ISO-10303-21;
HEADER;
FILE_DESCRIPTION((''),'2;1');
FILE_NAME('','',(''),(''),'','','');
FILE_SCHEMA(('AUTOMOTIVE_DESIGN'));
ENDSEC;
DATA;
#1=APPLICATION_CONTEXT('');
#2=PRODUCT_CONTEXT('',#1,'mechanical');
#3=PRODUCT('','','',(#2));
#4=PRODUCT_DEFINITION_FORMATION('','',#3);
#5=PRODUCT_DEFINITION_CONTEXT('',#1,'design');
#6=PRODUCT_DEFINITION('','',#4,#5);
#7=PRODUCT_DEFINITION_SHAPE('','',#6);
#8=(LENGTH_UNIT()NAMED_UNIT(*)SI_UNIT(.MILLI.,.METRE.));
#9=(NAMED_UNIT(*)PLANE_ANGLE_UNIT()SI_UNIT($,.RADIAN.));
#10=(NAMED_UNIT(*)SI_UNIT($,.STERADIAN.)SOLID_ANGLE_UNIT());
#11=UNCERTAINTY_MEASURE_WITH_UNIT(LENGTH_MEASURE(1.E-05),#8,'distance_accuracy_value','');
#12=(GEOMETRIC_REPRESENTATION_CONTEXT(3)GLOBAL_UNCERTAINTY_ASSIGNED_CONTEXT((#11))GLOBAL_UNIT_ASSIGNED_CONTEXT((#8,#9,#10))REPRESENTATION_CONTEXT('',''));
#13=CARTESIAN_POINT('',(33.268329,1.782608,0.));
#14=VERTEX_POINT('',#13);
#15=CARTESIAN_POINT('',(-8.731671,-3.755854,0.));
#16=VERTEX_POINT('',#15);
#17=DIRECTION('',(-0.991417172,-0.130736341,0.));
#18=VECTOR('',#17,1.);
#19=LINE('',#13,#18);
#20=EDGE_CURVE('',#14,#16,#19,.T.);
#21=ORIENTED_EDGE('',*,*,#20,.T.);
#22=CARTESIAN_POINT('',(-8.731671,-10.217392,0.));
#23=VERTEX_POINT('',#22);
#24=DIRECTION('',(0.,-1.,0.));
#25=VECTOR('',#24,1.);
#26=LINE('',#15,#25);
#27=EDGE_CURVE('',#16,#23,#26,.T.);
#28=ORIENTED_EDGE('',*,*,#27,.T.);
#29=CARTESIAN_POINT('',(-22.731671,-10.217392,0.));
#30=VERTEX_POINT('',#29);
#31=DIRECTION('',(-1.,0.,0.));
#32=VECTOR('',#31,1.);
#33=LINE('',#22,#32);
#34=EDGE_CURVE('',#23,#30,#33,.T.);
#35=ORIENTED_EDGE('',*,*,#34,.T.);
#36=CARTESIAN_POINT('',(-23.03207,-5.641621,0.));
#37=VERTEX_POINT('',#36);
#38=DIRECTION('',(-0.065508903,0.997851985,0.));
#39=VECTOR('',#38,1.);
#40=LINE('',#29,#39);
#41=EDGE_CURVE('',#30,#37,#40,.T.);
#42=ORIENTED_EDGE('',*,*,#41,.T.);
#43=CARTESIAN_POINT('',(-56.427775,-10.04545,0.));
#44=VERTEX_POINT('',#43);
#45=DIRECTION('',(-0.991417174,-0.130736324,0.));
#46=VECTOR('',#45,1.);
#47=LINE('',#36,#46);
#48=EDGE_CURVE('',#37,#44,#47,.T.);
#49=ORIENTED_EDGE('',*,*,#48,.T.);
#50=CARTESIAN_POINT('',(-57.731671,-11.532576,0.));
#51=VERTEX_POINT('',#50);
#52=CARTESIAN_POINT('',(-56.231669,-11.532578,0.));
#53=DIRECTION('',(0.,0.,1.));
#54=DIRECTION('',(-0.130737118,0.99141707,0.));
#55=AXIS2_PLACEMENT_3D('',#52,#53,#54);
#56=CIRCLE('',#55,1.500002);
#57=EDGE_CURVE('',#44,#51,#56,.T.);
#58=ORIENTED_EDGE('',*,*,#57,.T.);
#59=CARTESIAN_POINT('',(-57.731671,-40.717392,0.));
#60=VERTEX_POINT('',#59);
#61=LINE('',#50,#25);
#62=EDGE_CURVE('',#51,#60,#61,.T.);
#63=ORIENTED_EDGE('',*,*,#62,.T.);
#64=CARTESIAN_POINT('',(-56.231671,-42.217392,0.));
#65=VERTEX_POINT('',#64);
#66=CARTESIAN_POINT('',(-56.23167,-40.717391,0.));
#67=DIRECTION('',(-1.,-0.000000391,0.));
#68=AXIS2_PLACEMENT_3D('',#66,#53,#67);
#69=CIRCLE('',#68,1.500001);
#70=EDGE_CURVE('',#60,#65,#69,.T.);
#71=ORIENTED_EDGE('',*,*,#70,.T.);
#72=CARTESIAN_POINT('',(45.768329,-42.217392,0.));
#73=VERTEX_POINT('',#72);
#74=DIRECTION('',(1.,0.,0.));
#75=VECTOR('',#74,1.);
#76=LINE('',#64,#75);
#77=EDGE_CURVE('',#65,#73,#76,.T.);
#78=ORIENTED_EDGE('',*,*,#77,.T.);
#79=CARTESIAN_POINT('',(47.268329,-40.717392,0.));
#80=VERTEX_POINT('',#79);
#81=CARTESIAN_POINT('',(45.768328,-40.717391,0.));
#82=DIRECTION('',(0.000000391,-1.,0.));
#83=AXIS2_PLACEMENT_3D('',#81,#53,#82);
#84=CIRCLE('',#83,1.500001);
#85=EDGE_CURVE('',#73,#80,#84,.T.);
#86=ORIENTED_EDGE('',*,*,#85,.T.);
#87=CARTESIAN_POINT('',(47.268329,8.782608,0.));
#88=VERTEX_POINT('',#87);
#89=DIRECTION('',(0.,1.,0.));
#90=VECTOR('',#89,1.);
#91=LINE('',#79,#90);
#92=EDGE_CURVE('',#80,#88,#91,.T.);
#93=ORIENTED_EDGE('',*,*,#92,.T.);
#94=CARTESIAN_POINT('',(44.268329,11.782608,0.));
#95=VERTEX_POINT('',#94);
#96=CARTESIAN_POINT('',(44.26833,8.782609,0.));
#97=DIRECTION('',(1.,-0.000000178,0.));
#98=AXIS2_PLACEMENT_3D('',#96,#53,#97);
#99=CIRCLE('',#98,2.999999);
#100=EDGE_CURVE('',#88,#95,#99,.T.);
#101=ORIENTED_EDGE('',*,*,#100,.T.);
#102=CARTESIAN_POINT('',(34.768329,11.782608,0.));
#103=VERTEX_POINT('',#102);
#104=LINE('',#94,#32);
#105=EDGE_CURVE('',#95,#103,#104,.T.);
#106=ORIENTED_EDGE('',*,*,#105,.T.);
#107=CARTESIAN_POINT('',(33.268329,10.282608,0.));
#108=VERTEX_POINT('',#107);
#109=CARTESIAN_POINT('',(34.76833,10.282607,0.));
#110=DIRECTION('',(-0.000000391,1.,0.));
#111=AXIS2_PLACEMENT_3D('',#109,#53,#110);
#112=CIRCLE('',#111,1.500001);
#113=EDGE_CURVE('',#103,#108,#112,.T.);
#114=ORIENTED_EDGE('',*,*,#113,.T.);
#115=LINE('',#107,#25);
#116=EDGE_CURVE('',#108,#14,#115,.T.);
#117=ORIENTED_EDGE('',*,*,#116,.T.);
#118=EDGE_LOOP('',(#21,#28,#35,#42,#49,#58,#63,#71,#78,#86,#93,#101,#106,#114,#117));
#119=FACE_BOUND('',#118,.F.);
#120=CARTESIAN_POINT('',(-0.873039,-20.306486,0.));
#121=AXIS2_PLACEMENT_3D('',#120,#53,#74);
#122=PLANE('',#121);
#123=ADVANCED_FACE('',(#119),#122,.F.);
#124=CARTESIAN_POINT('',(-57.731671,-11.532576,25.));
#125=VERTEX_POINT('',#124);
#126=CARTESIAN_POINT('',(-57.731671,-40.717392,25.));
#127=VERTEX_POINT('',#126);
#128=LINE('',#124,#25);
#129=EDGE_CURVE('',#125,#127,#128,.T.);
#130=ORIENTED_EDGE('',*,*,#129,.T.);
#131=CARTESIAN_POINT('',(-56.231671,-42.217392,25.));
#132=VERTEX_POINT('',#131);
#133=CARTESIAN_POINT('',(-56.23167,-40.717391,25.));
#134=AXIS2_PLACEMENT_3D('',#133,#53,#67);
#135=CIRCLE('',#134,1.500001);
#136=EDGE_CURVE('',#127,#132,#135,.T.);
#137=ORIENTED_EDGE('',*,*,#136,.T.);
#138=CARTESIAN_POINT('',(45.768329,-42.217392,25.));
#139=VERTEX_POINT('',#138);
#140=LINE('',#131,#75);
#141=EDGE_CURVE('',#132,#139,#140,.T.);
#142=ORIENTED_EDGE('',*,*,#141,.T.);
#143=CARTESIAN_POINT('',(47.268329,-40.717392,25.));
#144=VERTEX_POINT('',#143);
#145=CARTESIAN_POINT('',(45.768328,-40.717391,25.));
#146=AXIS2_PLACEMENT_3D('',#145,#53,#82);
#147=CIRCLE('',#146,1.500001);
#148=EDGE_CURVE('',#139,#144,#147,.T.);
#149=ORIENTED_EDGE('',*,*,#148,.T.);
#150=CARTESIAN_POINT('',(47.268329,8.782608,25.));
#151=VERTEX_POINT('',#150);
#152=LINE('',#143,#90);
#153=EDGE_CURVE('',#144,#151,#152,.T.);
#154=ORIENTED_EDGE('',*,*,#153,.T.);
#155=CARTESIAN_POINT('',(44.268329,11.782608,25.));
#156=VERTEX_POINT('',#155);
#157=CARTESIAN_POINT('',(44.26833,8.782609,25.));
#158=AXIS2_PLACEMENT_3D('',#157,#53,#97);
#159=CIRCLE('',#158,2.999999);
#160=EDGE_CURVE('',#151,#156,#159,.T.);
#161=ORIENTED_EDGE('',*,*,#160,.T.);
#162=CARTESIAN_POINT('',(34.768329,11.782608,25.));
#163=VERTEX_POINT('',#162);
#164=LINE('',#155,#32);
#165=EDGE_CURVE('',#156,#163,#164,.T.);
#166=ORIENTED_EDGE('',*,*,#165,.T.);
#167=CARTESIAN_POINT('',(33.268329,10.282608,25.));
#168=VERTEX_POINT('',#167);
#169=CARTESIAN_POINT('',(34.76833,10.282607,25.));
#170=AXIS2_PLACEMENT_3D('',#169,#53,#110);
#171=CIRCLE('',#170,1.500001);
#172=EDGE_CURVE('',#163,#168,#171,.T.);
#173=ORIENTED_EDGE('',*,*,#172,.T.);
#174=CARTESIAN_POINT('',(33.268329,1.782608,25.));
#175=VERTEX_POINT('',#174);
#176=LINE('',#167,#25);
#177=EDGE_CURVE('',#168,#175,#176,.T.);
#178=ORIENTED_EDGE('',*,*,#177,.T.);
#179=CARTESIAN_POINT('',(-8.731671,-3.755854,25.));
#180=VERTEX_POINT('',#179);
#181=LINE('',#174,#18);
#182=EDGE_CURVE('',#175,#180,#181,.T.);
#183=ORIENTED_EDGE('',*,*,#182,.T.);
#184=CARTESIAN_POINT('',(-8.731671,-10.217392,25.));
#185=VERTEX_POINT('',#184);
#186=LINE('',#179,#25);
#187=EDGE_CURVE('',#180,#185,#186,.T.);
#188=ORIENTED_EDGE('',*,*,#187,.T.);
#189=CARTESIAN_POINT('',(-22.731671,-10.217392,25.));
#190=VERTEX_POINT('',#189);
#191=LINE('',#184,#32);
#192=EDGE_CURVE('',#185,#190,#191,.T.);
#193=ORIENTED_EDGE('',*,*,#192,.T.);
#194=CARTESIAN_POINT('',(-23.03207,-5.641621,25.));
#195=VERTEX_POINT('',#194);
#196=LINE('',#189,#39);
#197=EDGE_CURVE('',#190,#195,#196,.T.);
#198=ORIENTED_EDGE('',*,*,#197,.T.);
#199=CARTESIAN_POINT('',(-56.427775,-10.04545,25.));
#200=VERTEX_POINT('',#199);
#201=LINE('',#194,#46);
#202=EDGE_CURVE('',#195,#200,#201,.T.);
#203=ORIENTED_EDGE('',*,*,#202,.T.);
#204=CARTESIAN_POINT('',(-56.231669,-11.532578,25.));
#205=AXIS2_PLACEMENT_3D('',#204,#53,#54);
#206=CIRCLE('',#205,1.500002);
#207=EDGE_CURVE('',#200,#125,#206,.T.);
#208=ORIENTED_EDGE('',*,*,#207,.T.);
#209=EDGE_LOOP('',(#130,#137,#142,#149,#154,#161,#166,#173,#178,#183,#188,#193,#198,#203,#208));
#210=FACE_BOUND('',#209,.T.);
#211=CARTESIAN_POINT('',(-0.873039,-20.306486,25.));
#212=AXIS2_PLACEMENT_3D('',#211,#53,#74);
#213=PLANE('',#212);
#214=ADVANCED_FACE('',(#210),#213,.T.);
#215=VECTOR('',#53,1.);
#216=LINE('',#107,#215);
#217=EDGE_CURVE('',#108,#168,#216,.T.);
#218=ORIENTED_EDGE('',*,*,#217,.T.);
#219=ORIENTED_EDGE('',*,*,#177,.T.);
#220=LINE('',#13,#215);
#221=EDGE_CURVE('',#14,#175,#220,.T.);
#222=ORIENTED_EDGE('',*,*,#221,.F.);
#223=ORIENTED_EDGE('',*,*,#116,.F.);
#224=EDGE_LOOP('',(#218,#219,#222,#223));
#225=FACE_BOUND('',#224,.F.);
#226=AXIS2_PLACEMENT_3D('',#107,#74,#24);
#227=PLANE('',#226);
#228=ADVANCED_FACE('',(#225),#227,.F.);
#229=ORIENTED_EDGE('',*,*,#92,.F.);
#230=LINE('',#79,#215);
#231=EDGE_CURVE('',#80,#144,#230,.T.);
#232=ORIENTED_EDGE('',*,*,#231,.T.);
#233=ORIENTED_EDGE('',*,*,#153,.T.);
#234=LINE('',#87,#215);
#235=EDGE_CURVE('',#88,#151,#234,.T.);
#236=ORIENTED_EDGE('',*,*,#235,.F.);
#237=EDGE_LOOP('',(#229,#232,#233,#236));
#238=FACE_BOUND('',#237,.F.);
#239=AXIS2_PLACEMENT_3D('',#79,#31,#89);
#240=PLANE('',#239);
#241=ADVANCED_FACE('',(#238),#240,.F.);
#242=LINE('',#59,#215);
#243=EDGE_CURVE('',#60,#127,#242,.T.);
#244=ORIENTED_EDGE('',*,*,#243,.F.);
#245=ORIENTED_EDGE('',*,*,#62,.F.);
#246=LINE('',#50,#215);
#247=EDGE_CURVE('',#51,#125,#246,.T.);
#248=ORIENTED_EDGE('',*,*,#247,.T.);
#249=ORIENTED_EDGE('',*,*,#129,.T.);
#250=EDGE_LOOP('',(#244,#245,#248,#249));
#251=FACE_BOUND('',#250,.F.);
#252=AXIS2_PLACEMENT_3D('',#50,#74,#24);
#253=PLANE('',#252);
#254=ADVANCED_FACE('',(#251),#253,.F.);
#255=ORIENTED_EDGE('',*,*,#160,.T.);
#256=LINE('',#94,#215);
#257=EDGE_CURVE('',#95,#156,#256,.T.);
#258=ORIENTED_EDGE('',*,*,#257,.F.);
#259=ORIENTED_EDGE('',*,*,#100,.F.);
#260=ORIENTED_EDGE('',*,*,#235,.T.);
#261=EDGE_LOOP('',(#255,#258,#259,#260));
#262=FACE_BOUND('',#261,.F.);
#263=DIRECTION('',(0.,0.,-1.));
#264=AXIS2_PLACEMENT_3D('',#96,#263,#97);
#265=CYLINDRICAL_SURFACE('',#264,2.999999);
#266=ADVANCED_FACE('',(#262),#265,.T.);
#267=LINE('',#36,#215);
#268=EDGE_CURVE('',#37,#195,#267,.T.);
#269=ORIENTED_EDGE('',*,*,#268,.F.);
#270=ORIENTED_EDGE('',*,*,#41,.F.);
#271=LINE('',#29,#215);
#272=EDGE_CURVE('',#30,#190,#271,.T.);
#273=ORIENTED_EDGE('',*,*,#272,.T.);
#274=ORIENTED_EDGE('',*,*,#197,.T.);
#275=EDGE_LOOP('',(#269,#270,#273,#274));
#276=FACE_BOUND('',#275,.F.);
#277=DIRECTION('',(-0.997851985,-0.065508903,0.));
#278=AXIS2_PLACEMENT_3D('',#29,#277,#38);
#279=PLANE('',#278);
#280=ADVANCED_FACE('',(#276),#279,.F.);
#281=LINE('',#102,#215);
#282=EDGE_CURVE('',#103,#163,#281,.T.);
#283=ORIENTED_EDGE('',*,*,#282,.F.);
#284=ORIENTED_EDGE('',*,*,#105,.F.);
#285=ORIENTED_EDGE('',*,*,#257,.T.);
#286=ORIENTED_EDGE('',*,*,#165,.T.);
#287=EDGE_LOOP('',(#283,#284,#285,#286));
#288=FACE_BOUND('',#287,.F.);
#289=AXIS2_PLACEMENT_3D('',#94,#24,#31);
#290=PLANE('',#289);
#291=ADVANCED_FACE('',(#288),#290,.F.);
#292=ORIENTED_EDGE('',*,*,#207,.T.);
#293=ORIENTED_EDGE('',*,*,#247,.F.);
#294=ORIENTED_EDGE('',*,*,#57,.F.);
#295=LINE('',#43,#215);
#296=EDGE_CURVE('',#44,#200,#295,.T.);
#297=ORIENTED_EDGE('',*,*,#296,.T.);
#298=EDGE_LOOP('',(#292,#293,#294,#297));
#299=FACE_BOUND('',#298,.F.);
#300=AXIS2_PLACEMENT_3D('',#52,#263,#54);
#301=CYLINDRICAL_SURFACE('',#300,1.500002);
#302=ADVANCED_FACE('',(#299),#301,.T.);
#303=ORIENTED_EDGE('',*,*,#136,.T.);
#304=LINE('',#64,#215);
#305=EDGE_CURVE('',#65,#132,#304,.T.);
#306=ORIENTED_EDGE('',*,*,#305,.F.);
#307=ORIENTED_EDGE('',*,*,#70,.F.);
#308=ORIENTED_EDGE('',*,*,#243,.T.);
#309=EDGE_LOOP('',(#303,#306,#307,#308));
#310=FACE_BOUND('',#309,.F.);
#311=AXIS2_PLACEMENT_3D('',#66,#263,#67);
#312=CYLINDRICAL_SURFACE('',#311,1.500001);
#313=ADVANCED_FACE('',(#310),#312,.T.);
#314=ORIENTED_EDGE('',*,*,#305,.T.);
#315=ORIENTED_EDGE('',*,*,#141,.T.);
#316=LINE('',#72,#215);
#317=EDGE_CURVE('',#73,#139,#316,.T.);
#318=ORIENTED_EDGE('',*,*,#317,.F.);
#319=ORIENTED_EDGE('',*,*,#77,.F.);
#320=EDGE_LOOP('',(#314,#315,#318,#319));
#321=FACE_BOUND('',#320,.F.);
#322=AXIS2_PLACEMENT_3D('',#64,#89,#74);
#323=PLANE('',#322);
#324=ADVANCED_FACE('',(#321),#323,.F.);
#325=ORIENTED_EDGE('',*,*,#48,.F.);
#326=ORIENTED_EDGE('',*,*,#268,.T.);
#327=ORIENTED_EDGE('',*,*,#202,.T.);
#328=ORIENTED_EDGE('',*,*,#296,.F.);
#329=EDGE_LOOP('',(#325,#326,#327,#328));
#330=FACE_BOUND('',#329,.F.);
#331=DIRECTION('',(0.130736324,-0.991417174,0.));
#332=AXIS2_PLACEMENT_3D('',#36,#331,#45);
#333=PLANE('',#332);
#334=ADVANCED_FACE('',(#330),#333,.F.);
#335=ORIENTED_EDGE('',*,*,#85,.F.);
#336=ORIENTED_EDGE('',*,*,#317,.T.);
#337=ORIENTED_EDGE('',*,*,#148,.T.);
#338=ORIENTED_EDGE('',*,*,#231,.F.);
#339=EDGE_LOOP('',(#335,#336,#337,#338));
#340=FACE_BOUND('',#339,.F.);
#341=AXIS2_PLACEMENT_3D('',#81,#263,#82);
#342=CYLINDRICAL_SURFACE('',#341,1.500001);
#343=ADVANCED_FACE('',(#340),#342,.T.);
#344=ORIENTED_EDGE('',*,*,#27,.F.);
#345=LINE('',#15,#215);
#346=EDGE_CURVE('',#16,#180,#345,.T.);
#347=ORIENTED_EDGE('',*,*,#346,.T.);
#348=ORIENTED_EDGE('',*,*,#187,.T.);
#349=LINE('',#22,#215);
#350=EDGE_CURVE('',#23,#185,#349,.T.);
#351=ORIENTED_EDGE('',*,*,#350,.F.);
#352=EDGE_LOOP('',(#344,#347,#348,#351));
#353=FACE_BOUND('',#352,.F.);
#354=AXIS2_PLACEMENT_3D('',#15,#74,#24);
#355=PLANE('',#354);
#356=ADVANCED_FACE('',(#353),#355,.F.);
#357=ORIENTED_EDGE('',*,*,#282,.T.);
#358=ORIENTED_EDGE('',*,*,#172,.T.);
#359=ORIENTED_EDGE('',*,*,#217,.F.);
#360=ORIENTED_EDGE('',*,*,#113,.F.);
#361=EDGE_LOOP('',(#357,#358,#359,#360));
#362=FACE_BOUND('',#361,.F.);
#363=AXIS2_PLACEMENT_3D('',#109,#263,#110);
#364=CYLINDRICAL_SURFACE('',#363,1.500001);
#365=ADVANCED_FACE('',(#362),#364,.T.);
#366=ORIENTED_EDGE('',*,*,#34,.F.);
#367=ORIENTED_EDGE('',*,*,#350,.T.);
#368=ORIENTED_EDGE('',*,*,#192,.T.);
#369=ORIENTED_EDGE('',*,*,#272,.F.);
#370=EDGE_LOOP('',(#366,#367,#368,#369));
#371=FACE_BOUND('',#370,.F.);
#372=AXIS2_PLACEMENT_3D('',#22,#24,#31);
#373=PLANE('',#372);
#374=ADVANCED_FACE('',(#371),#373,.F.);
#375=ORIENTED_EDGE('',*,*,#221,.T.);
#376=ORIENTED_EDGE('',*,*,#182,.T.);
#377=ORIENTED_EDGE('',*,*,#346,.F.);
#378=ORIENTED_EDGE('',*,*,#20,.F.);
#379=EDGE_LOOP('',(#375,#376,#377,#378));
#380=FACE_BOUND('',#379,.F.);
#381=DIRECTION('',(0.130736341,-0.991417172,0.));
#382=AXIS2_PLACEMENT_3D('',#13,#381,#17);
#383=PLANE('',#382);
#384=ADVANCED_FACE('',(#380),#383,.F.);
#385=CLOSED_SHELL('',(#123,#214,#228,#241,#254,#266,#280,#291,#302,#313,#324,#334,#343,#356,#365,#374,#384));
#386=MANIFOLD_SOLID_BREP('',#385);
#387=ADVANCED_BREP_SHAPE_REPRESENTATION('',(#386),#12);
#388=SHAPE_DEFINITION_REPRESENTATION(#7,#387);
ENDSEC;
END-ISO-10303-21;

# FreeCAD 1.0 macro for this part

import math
import FreeCAD as App
import Part
import Sketcher
from FreeCAD import Vector
Q = App.Units.Quantity

doc = App.newDocument("Part")
body = doc.addObject("PartDesign::Body", "Body")

# Sketch on XY plane
sketch1 = body.newObject("Sketcher::SketchObject", "Sketch")
sketch1.AttachmentSupport = (doc.getObject("XY_Plane"), [""])
sketch1.MapMode = "FlatFace"
sketch1.addGeometry([
    Part.ArcOfCircle(Part.Circle(Vector(-56.2, -40.7, 0), Vector(0, 0, 1), 1.5), math.radians(-180), math.radians(-90)),  # 0
    Part.LineSegment(Vector(-56.2, -42.2, 0), Vector(45.8, -42.2, 0)),  # 1
    Part.ArcOfCircle(Part.Circle(Vector(45.8, -40.7, 0), Vector(0, 0, 1), 1.5), math.radians(-90), math.radians(0)),  # 2
    Part.LineSegment(Vector(47.3, -40.7, 0), Vector(47.3, 8.8, 0)),  # 3
    Part.ArcOfCircle(Part.Circle(Vector(44.3, 8.8, 0), Vector(0, 0, 1), 3), math.radians(0), math.radians(90)),  # 4
    Part.LineSegment(Vector(44.3, 11.8, 0), Vector(34.8, 11.8, 0)),  # 5
    Part.ArcOfCircle(Part.Circle(Vector(34.8, 10.3, 0), Vector(0, 0, 1), 1.5), math.radians(90), math.radians(180)),  # 6
    Part.LineSegment(Vector(33.3, 10.3, 0), Vector(33.3, 1.8, 0)),  # 7
    Part.LineSegment(Vector(33.3, 1.8, 0), Vector(-8.7, -3.8, 0)),  # 8
    Part.LineSegment(Vector(-8.7, -3.8, 0), Vector(-8.7, -10.2, 0)),  # 9
    Part.LineSegment(Vector(-8.7, -10.2, 0), Vector(-22.7, -10.2, 0)),  # 10
    Part.LineSegment(Vector(-22.7, -10.2, 0), Vector(-23, -5.6, 0)),  # 11
    Part.LineSegment(Vector(-23, -5.6, 0), Vector(-56.4, -10, 0)),  # 12
    Part.ArcOfCircle(Part.Circle(Vector(-56.2, -11.5, 0), Vector(0, 0, 1), 1.5), math.radians(98), math.radians(180)),  # 13
    Part.LineSegment(Vector(-57.7, -11.5, 0), Vector(-57.7, -40.7, 0)),  # 14
], False)
sketch1.addConstraint([
    Sketcher.Constraint("Tangent", 0, 2, 1, 1),
    Sketcher.Constraint("Tangent", 1, 2, 2, 1),
    Sketcher.Constraint("Tangent", 2, 2, 3, 1),
    Sketcher.Constraint("Tangent", 3, 2, 4, 1),
    Sketcher.Constraint("Tangent", 4, 2, 5, 1),
    Sketcher.Constraint("Tangent", 5, 2, 6, 1),
    Sketcher.Constraint("Tangent", 6, 2, 7, 1),
    Sketcher.Constraint("Coincident", 7, 2, 8, 1),
    Sketcher.Constraint("Coincident", 8, 2, 9, 1),
    Sketcher.Constraint("Coincident", 9, 2, 10, 1),
    Sketcher.Constraint("Coincident", 10, 2, 11, 1),
    Sketcher.Constraint("Coincident", 11, 2, 12, 1),
    Sketcher.Constraint("Tangent", 12, 2, 13, 1),
    Sketcher.Constraint("Tangent", 13, 2, 14, 1),
    Sketcher.Constraint("Tangent", 14, 2, 0, 1),
    Sketcher.Constraint("Horizontal", 1),
    Sketcher.Constraint("Vertical", 3),
    Sketcher.Constraint("Horizontal", 5),
    Sketcher.Constraint("Vertical", 7),
    Sketcher.Constraint("Vertical", 9),
    Sketcher.Constraint("Horizontal", 10),
    Sketcher.Constraint("Vertical", 14),
    Sketcher.Constraint("Equal", 0, 2),
    Sketcher.Constraint("Equal", 2, 6),
    Sketcher.Constraint("Equal", 6, 13),
    Sketcher.Constraint("Parallel", 8, 12),
    Sketcher.Constraint("Radius", 4, Q("2.999999 mm")),
    Sketcher.Constraint("Radius", 0, Q("1.500001 mm")),
    Sketcher.Constraint("DistanceX", 1, 1, 1, 2, Q("102 mm")),
    Sketcher.Constraint("DistanceX", 10, 2, 10, 1, Q("14 mm")),
    Sketcher.Constraint("DistanceX", 5, 2, 5, 1, Q("9.5 mm")),
    Sketcher.Constraint("DistanceY", 3, 1, 3, 2, Q("49.5 mm")),
    Sketcher.Constraint("DistanceY", 7, 2, 7, 1, Q("8.5 mm")),
    Sketcher.Constraint("DistanceX", 8, 2, 7, 2, Q("42 mm")),
    Sketcher.Constraint("DistanceY", 9, 2, 7, 2, Q("12 mm")),
    Sketcher.Constraint("Distance", 8, Q("42.363599 mm")),
    Sketcher.Constraint("DistanceX", 11, 2, 10, 2, Q("0.300399 mm")),
    Sketcher.Constraint("Distance", 11, Q("4.585621 mm")),
    Sketcher.Constraint("DistanceX", 0, 3, -1, 1, Q("56.23167 mm")),
    Sketcher.Constraint("DistanceY", 0, 3, -1, 1, Q("40.717391 mm")),
])
pad1 = body.newObject("PartDesign::Pad", "Pad")
pad1.Profile = sketch1
pad1.Length = 25

doc.recompute()
